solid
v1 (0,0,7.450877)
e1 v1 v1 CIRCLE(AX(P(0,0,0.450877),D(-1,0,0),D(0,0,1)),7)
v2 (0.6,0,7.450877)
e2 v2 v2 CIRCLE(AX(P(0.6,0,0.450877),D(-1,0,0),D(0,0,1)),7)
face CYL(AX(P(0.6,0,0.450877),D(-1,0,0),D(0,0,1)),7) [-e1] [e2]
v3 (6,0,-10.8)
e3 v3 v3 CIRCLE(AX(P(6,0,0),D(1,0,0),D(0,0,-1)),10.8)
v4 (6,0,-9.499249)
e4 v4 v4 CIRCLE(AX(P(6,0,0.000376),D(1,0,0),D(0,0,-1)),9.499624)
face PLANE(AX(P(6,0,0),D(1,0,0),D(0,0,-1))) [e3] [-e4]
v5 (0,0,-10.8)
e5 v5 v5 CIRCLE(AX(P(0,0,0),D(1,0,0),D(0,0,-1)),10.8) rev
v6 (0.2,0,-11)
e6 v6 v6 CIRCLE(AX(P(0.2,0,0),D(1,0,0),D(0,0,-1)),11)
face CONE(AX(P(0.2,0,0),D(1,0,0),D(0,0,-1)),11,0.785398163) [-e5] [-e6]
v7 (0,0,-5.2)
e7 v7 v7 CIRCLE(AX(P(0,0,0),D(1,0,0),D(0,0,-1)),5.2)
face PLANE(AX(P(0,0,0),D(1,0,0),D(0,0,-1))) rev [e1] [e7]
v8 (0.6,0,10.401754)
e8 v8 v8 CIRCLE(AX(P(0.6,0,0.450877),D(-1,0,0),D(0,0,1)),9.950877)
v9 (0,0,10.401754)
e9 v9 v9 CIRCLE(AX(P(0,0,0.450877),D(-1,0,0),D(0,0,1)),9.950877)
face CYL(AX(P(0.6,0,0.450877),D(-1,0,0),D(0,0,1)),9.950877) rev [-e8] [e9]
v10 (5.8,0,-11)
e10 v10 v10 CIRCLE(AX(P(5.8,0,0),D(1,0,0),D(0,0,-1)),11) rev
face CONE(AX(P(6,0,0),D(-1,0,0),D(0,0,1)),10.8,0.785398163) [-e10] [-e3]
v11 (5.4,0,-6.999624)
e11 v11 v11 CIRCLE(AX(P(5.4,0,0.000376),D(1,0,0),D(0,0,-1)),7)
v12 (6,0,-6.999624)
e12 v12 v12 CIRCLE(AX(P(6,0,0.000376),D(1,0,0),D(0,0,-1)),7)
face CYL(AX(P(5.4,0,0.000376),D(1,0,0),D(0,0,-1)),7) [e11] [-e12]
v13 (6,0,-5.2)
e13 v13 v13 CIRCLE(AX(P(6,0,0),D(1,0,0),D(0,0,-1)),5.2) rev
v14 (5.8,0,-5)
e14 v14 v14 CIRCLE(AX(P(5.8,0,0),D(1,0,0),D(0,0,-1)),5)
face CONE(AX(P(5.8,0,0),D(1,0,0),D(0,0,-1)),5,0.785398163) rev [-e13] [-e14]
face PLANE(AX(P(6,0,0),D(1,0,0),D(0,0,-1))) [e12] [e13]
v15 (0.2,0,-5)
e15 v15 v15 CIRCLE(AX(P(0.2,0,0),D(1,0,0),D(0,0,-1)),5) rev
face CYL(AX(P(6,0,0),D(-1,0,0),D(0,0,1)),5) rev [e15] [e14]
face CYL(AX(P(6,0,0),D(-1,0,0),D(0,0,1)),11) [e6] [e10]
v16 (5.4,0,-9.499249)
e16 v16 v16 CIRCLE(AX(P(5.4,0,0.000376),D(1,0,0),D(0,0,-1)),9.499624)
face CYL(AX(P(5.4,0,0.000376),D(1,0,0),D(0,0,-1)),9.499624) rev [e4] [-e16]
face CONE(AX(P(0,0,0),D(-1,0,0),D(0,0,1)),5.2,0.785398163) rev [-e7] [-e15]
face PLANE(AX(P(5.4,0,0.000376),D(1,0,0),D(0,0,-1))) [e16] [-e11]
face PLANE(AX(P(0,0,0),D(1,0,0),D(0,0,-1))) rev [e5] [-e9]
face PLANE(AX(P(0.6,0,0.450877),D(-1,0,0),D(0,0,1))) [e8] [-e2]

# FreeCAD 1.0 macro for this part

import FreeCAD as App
import Part
import Sketcher


def edges_at(feature, points):
    """Names of the edges that pass closest to the given points."""
    edges = feature.Shape.Edges
    near = lambda p: min(range(len(edges)), key=lambda i: edges[i].distToShape(Part.Vertex(*p))[0])
    return sorted({f"Edge{near(p) + 1}" for p in points})

doc = App.newDocument("Part")
body = doc.addObject("PartDesign::Body", "Body")

sketch1 = body.newObject("Sketcher::SketchObject", "Sketch")
sketch1.AttachmentSupport = (doc.getObject("YZ_Plane"), [""])
sketch1.MapMode = "FlatFace"
sketch1.addGeometry(Part.Circle(App.Vector(0, 0, 0), App.Vector(0, 0, 1), 11), False)
sketch1.addGeometry(Part.Circle(App.Vector(0, 0, 0), App.Vector(0, 0, 1), 5), False)
sketch1.addConstraint(Sketcher.Constraint("Coincident", 0, 3, -1, 1))
sketch1.addConstraint(Sketcher.Constraint("Coincident", 1, 3, -1, 1))
sketch1.addConstraint(Sketcher.Constraint("Diameter", 0, 22.0))
sketch1.addConstraint(Sketcher.Constraint("Diameter", 1, 10.0))
pad1 = body.newObject("PartDesign::Pad", "Pad")
pad1.Profile = sketch1
pad1.Length = 6

sketch2 = body.newObject("Sketcher::SketchObject", "Sketch001")
sketch2.AttachmentSupport = (doc.getObject("YZ_Plane"), [""])
sketch2.MapMode = "FlatFace"
sketch2.AttachmentOffset = App.Placement(App.Vector(0, 0, 6), App.Rotation())
sketch2.addGeometry(Part.Circle(App.Vector(0, 0.000376, 0), App.Vector(0, 0, 1), 9.499624), False)
sketch2.addGeometry(Part.Circle(App.Vector(0, 0.000376, 0), App.Vector(0, 0, 1), 7), False)
sketch2.addConstraint(Sketcher.Constraint("Coincident", 1, 3, 0, 3))
sketch2.addConstraint(Sketcher.Constraint("PointOnObject", 0, 3, -2))
sketch2.addConstraint(Sketcher.Constraint("Diameter", 1, 14.0))
sketch2.addConstraint(Sketcher.Constraint("Diameter", 0, 18.999249))
sketch2.addConstraint(Sketcher.Constraint("DistanceY", -1, 1, 0, 3, 0.000376))
pocket1 = body.newObject("PartDesign::Pocket", "Pocket")
pocket1.Profile = sketch2
pocket1.Length = 0.6

sketch3 = body.newObject("Sketcher::SketchObject", "Sketch002")
sketch3.AttachmentSupport = (doc.getObject("YZ_Plane"), [""])
sketch3.MapMode = "FlatFace"
sketch3.addGeometry(Part.Circle(App.Vector(0, 0.450877, 0), App.Vector(0, 0, 1), 9.950877), False)
sketch3.addGeometry(Part.Circle(App.Vector(0, 0.450877, 0), App.Vector(0, 0, 1), 7), False)
sketch3.addConstraint(Sketcher.Constraint("Coincident", 1, 3, 0, 3))
sketch3.addConstraint(Sketcher.Constraint("PointOnObject", 0, 3, -2))
sketch3.addConstraint(Sketcher.Constraint("Diameter", 1, 14.0))
sketch3.addConstraint(Sketcher.Constraint("Diameter", 0, 19.901754))
sketch3.addConstraint(Sketcher.Constraint("DistanceY", -1, 1, 0, 3, 0.450877))
pocket2 = body.newObject("PartDesign::Pocket", "Pocket001")
pocket2.Profile = sketch3
pocket2.Length = 0.6
pocket2.Reversed = True
doc.recompute()

chamfer = body.newObject("PartDesign::Chamfer", "Chamfer")
chamfer.Base = (pocket2, edges_at(pocket2, [
    (0, 0, 11),
    (6, 0, 11),
    (0, 0, 5),
    (6, 0, 5),
]))
chamfer.Size = 0.2

doc.recompute()
